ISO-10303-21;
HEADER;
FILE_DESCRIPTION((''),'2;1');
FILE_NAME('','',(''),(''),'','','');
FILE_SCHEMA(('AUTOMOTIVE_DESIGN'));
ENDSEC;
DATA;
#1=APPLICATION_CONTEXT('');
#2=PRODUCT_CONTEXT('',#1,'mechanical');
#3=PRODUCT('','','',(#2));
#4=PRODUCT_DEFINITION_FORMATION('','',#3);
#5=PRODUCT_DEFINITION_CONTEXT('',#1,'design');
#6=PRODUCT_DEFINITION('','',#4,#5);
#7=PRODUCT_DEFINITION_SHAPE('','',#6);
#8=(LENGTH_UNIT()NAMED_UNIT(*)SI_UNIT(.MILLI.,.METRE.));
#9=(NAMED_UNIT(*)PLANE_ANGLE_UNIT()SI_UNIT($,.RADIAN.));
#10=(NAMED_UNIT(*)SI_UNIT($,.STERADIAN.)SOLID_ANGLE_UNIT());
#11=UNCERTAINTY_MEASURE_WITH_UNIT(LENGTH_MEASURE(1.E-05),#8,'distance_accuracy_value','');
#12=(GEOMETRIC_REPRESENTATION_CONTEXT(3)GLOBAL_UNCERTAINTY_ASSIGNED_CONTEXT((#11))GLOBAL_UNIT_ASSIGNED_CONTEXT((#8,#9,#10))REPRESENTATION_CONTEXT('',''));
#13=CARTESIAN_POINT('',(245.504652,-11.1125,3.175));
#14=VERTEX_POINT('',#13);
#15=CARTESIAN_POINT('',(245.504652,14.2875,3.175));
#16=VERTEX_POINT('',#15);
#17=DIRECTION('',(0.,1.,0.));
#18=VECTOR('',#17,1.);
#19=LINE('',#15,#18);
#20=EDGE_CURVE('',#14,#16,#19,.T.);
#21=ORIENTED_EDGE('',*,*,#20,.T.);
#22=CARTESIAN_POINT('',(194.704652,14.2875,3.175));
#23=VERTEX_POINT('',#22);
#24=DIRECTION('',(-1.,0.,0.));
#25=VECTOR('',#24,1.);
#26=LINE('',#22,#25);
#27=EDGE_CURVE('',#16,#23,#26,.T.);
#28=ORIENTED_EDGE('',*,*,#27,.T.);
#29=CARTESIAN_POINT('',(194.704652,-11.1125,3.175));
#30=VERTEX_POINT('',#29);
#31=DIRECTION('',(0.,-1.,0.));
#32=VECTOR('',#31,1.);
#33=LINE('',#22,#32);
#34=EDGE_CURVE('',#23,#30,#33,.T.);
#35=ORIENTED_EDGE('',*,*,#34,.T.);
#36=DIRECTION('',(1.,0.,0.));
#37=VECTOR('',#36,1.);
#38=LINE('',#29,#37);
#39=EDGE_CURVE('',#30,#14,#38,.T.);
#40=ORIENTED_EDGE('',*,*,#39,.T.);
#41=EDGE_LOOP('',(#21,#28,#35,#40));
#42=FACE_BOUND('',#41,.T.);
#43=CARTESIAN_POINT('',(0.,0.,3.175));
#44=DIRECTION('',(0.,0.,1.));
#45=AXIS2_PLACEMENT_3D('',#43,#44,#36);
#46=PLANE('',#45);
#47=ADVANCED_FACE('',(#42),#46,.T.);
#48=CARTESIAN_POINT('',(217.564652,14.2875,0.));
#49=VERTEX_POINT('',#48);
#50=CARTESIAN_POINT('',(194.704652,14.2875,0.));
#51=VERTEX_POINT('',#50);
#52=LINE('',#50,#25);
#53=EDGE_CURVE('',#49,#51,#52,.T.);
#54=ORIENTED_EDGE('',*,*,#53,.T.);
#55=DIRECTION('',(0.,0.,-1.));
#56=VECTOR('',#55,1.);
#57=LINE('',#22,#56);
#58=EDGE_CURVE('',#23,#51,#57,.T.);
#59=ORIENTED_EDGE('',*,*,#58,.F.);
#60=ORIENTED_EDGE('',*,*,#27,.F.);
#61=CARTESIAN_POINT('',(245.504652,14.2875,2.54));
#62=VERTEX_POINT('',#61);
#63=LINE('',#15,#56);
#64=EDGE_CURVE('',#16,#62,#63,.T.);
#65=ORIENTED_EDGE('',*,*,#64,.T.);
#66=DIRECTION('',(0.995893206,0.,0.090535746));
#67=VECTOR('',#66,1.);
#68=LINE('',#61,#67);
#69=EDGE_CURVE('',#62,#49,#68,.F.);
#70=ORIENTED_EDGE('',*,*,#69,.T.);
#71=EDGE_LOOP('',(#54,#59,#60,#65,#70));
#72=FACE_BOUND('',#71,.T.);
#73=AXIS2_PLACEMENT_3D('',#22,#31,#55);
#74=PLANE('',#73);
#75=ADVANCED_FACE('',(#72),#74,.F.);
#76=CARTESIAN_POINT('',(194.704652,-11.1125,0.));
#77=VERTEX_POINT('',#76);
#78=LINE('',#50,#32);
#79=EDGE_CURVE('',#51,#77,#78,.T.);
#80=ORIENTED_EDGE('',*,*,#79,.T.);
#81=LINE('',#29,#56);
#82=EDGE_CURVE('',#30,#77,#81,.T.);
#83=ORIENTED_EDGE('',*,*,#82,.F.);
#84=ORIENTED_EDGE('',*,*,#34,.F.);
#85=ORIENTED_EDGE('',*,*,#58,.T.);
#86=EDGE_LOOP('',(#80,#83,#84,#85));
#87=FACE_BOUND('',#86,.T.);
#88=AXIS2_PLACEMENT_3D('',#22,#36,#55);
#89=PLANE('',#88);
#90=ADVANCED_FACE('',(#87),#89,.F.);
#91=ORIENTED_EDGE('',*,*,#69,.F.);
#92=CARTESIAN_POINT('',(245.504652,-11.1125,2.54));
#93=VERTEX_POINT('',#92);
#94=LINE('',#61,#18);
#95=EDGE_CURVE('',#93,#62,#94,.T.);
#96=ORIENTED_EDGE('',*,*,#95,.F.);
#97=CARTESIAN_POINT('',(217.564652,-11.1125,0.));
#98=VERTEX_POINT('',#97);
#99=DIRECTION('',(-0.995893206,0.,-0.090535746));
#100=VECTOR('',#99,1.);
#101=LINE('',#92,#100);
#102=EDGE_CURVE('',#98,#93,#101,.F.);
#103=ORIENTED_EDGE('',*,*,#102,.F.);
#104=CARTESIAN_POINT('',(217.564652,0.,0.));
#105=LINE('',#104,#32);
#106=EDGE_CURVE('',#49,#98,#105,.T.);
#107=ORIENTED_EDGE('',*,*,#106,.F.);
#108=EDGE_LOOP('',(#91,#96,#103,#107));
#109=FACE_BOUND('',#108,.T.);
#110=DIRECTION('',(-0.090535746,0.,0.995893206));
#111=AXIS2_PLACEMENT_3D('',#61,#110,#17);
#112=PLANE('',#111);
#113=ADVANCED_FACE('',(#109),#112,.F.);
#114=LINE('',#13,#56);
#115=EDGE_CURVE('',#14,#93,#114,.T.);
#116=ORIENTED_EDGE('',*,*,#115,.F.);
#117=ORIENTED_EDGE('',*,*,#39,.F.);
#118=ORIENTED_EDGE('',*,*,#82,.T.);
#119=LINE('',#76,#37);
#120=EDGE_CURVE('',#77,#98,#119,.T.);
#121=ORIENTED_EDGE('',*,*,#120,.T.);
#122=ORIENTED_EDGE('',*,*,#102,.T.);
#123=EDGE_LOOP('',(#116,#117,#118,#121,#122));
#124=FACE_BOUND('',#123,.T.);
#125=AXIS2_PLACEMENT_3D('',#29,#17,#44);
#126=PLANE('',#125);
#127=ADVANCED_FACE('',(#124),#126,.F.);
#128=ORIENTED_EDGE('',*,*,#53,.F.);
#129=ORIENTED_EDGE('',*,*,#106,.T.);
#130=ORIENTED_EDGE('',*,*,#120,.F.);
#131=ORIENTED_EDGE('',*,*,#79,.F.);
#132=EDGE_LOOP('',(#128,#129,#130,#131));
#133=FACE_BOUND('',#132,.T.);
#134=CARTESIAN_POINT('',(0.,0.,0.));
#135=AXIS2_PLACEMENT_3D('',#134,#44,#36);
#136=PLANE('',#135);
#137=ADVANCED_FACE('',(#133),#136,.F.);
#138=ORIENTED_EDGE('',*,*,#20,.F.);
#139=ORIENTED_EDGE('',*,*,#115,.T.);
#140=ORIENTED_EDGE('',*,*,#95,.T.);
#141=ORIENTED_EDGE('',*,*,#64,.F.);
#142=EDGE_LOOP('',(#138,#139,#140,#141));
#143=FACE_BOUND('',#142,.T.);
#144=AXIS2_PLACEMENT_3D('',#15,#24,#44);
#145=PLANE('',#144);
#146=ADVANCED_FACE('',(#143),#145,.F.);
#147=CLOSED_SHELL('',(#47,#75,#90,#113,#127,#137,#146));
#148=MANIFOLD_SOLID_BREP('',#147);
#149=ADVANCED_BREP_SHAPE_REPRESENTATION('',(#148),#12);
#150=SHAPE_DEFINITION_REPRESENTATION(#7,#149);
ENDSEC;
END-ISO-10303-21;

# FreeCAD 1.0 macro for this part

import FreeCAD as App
import Part
import Sketcher

V = App.Vector
Q = App.Units.Quantity


def edges_at(feature, points):
    """Names of the edges that pass closest to the given points."""
    edges = feature.Shape.Edges
    near = lambda p: min(range(len(edges)), key=lambda i: edges[i].distToShape(Part.Vertex(*p))[0])
    return sorted({f"Edge{near(p) + 1}" for p in points})


def add_polygon(sketch, points):
    """Adds a closed chain of lines whose ends are joined by coincident constraints."""
    first, n = sketch.GeometryCount, len(points)
    for a, b in zip(points, points[1:] + points[:1]):
        sketch.addGeometry(Part.LineSegment(App.Vector(*a, 0), App.Vector(*b, 0)), False)
    for i in range(n):
        sketch.addConstraint(Sketcher.Constraint("Coincident", first + i, 2, first + (i + 1) % n, 1))

doc = App.newDocument("Part")
params = doc.addObject("Spreadsheet::Sheet", "Params")
for row, (alias, value) in enumerate([
    ("sketch1_width", "2 in"),
    ("sketch1_height", "1 in"),
    ("pad1_length", "0.125 in"),
    ("chamfer_size", "1.1 in"),
    ("chamfer_size2", "0.1 in"),
], start=1):
    params.set(f"A{row}", alias)
    params.set(f"B{row}", "=" + value)
    params.setAlias(f"B{row}", alias)

body = doc.addObject("PartDesign::Body", "Body")

# Sketch on XY plane
sketch1 = body.newObject("Sketcher::SketchObject", "Sketch")
sketch1.AttachmentSupport = (doc.getObject("XY_Plane"), [""])
sketch1.MapMode = "FlatFace"
add_polygon(sketch1, [(194.704652, 14.2875), (194.704652, -11.1125), (245.504652, -11.1125), (245.504652, 14.2875)])  # lines 0-3
sketch1.addConstraint([
    Sketcher.Constraint("Vertical", 0),
    Sketcher.Constraint("Horizontal", 1),
    Sketcher.Constraint("Vertical", 2),
    Sketcher.Constraint("Horizontal", 3),
    Sketcher.Constraint("DistanceX", 1, 1, 1, 2, Q("2 in")),
    Sketcher.Constraint("DistanceY", 0, 2, 0, 1, Q("1 in")),
    Sketcher.Constraint("DistanceY", 0, 2, -1, 1, Q("0.4375 in")),
    Sketcher.Constraint("DistanceX", -1, 1, 0, 2, Q("194.704652 mm")),
])
sketch1.setExpression("Constraints[8]", "Params.sketch1_width")
sketch1.setExpression("Constraints[9]", "Params.sketch1_height")
pad1 = body.newObject("PartDesign::Pad", "Pad")
pad1.Profile = sketch1
pad1.setExpression("Length", "Params.pad1_length")
doc.recompute()

chamfer = body.newObject("PartDesign::Chamfer", "Chamfer")
chamfer.Base = (pad1, edges_at(pad1, [(245.505, 1.587, 0)]))
chamfer.ChamferType = "Two distances"
chamfer.setExpression("Size", "Params.chamfer_size")
chamfer.setExpression("Size2", "Params.chamfer_size2")
chamfer.FlipDirection = True

doc.recompute()
